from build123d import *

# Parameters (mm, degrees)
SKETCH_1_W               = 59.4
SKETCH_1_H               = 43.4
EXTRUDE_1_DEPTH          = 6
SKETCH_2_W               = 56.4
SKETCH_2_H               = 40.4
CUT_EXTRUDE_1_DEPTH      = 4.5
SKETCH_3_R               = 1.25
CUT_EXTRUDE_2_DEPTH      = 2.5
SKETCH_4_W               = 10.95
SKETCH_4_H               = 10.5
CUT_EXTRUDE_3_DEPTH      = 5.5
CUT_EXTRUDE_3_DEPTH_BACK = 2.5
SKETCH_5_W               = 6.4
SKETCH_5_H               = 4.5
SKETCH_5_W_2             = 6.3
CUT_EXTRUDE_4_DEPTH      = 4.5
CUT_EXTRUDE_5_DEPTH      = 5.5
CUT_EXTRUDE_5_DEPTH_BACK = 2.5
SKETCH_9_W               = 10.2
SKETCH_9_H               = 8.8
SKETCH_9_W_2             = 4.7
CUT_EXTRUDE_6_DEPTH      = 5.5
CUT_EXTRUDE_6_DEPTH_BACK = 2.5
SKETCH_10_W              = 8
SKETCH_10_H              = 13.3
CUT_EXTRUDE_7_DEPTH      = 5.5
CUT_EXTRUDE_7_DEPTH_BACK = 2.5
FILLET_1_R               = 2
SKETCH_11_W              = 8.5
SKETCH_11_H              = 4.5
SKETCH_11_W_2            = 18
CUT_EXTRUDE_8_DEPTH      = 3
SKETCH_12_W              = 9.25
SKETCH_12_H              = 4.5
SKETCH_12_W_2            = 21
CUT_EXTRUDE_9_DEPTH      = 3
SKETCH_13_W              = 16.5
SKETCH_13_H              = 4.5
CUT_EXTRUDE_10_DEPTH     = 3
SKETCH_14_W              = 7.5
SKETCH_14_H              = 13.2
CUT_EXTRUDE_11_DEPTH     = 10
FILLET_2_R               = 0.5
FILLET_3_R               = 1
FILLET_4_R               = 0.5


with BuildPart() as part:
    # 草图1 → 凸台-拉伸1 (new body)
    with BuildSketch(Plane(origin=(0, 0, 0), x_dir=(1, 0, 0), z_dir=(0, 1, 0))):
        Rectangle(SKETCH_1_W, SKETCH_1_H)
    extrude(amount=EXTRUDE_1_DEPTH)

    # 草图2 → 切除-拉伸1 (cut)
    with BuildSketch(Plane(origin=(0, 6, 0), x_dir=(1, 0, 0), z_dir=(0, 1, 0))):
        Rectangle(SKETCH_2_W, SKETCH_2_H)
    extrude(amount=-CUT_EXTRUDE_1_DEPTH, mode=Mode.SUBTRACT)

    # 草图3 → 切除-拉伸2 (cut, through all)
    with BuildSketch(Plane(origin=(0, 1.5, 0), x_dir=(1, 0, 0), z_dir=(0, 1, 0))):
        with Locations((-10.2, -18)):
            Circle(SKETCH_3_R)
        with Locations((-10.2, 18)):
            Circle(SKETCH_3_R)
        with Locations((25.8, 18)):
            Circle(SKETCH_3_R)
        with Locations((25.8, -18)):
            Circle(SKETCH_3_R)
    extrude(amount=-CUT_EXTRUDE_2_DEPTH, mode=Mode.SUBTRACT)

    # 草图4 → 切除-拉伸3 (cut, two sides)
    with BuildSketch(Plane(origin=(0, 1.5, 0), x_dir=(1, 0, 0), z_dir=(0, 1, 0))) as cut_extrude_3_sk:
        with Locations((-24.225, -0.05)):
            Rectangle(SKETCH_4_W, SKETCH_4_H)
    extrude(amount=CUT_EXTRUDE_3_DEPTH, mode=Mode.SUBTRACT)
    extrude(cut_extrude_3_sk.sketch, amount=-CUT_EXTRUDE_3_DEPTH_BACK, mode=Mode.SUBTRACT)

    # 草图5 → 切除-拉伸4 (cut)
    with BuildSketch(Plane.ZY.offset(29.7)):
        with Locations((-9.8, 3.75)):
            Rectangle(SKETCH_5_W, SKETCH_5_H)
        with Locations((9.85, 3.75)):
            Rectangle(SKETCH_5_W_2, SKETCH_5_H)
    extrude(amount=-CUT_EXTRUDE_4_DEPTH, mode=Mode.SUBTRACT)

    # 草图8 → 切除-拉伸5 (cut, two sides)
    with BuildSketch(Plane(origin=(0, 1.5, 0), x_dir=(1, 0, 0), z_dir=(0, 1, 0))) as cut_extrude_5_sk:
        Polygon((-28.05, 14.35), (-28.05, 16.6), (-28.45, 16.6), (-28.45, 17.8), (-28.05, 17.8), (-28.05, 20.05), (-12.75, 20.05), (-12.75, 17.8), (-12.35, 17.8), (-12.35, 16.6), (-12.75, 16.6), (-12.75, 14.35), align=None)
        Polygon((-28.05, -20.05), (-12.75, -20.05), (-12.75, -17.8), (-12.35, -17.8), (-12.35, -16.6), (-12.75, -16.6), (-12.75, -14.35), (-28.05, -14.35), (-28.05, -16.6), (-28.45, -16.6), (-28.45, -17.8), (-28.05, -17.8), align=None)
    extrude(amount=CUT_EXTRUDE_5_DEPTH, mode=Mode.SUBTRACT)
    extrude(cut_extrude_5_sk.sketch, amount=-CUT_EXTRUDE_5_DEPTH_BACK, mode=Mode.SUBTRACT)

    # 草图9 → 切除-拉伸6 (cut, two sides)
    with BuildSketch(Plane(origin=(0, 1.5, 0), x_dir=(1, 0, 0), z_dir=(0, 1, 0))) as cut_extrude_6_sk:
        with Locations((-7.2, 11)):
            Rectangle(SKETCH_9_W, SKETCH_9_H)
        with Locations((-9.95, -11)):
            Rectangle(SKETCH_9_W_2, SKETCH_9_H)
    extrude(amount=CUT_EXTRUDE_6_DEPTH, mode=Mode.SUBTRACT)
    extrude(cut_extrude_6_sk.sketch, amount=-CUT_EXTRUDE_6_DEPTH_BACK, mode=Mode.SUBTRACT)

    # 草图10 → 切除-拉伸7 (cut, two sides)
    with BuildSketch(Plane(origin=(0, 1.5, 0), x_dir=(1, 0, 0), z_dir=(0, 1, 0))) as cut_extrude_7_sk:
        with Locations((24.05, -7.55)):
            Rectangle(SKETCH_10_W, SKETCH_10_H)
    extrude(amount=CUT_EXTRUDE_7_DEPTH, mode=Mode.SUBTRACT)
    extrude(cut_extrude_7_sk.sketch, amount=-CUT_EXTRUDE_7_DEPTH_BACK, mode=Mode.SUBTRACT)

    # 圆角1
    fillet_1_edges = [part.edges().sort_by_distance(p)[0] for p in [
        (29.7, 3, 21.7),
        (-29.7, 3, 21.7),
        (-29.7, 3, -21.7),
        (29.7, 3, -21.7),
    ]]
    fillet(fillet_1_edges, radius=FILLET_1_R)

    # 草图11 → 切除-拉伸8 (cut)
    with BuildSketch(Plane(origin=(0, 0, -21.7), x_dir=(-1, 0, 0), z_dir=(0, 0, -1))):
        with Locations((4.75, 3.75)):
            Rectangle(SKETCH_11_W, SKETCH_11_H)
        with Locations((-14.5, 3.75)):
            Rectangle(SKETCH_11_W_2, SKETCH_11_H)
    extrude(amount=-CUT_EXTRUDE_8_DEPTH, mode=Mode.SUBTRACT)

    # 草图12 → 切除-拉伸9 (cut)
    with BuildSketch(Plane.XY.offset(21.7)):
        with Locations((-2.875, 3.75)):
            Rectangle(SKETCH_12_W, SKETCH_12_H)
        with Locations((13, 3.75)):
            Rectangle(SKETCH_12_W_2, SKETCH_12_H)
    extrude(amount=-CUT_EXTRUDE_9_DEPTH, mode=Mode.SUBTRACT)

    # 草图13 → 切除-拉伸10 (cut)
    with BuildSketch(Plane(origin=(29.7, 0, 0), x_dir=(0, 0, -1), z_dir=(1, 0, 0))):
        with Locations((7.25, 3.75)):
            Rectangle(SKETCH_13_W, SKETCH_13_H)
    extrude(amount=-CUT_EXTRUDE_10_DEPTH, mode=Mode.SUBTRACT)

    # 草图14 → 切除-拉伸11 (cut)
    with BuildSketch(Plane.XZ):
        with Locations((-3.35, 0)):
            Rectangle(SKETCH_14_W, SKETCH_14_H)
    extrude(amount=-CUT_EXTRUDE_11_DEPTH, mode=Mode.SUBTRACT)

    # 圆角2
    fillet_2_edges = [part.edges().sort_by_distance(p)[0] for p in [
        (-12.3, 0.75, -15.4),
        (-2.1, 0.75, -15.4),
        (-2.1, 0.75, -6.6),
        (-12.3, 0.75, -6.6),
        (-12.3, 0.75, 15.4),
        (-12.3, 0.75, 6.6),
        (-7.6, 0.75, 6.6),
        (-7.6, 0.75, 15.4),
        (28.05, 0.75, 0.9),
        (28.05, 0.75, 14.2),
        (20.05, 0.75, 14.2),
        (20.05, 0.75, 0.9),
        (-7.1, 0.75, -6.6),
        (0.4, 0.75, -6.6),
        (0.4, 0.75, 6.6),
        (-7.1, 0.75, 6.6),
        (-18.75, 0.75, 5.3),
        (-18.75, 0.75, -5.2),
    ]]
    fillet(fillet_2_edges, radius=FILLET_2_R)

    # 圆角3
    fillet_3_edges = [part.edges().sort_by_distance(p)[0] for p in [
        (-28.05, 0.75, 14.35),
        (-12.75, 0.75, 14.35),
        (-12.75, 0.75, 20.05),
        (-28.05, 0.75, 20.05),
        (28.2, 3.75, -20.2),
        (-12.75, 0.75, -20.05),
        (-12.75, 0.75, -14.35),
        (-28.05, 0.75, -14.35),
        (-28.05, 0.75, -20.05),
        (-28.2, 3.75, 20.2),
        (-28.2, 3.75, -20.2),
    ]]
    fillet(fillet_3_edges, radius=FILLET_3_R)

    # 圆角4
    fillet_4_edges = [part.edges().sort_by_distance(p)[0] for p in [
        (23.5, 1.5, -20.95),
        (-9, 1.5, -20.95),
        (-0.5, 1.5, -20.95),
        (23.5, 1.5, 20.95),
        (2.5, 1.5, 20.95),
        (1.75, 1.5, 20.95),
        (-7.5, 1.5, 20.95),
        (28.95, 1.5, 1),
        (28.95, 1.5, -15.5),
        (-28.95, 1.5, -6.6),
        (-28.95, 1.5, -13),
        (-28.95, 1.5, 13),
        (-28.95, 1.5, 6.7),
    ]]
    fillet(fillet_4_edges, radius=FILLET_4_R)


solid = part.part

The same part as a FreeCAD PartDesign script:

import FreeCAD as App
import Part
import Sketcher

V = App.Vector


def edges_at(feature, points):
    """Names of the edges that pass closest to the given points."""
    edges = feature.Shape.Edges
    near = lambda p: min(range(len(edges)), key=lambda i: edges[i].distToShape(Part.Vertex(*p))[0])
    return sorted({f"Edge{near(p) + 1}" for p in points})

doc = App.newDocument("Part")
body = doc.addObject("PartDesign::Body", "Body")

# Sketch on XZ plane
sketch1 = doc.addObject("Sketcher::SketchObject", "Sketch")
body.addObject(sketch1)
sketch1.AttachmentSupport = (doc.XZ_Plane, [""])
sketch1.MapMode = "FlatFace"
sketch1.addGeometry([
    Part.LineSegment(V(-30, -22, 0), V(-30, 22, 0)),
    Part.LineSegment(V(-30, 22, 0), V(30, 22, 0)),
    Part.LineSegment(V(30, 22, 0), V(30, -22, 0)),
    Part.LineSegment(V(30, -22, 0), V(-30, -22, 0)),
], False)
sketch1.addConstraint([
    Sketcher.Constraint("Coincident", 0, 2, 1, 1),
    Sketcher.Constraint("Coincident", 1, 2, 2, 1),
    Sketcher.Constraint("Coincident", 2, 2, 3, 1),
    Sketcher.Constraint("Coincident", 3, 2, 0, 1),
    Sketcher.Constraint("Vertical", 0),
    Sketcher.Constraint("Horizontal", 1),
    Sketcher.Constraint("Vertical", 2),
    Sketcher.Constraint("Horizontal", 3),
    Sketcher.Constraint("Symmetric", 0, 2, 2, 2, -1, 1),
    Sketcher.Constraint("DistanceX", 1, 1, 1, 2, 59.4),
    Sketcher.Constraint("DistanceY", 0, 1, 0, 2, 43.4),
])
pad1 = doc.addObject("PartDesign::Pad", "Pad")
body.addObject(pad1)
pad1.Profile = sketch1
pad1.Length = 6
pad1.Reversed = True

# Sketch on XZ plane
sketch2 = doc.addObject("Sketcher::SketchObject", "Sketch001")
body.addObject(sketch2)
sketch2.AttachmentSupport = (doc.XZ_Plane, [""])
sketch2.MapMode = "FlatFace"
sketch2.AttachmentOffset = App.Placement(V(0, 0, -6), App.Rotation())
sketch2.addGeometry([
    Part.LineSegment(V(-28, -20, 0), V(-28, 20, 0)),
    Part.LineSegment(V(-28, 20, 0), V(28, 20, 0)),
    Part.LineSegment(V(28, 20, 0), V(28, -20, 0)),
    Part.LineSegment(V(28, -20, 0), V(-28, -20, 0)),
], False)
sketch2.addConstraint([
    Sketcher.Constraint("Coincident", 0, 2, 1, 1),
    Sketcher.Constraint("Coincident", 1, 2, 2, 1),
    Sketcher.Constraint("Coincident", 2, 2, 3, 1),
    Sketcher.Constraint("Coincident", 3, 2, 0, 1),
    Sketcher.Constraint("Vertical", 0),
    Sketcher.Constraint("Horizontal", 1),
    Sketcher.Constraint("Vertical", 2),
    Sketcher.Constraint("Horizontal", 3),
    Sketcher.Constraint("Symmetric", 0, 2, 2, 2, -1, 1),
    Sketcher.Constraint("DistanceX", 1, 1, 1, 2, 56.4),
    Sketcher.Constraint("DistanceY", 0, 1, 0, 2, 40.4),
])
pocket1 = doc.addObject("PartDesign::Pocket", "Pocket")
body.addObject(pocket1)
pocket1.Profile = sketch2
pocket1.Length = 4.5
pocket1.Reversed = True

# Sketch on XZ plane
sketch3 = doc.addObject("Sketcher::SketchObject", "Sketch002")
body.addObject(sketch3)
sketch3.AttachmentSupport = (doc.XZ_Plane, [""])
sketch3.MapMode = "FlatFace"
sketch3.AttachmentOffset = App.Placement(V(0, 0, -1.5), App.Rotation())
sketch3.addGeometry([
    Part.Circle(V(-10.2, 18, 0), V(0, 0, 1), 1.2),
    Part.Circle(V(-10.2, -18, 0), V(0, 0, 1), 1.2),
    Part.Circle(V(25.8, -18, 0), V(0, 0, 1), 1.2),
    Part.Circle(V(25.8, 18, 0), V(0, 0, 1), 1.2),
], False)
sketch3.addConstraint([
    Sketcher.Constraint("Equal", 0, 1),
    Sketcher.Constraint("Equal", 1, 2),
    Sketcher.Constraint("Equal", 2, 3),
    Sketcher.Constraint("Symmetric", 0, 3, 1, 3, -1),
    Sketcher.Constraint("Symmetric", 2, 3, 3, 3, -1),
    Sketcher.Constraint("Horizontal", 1, 3, 2, 3),
    Sketcher.Constraint("Diameter", 0, 2.5),
    Sketcher.Constraint("DistanceY", -1, 1, 0, 3, 18.0),
    Sketcher.Constraint("DistanceX", 1, 3, 2, 3, 36.0),
    Sketcher.Constraint("DistanceX", 0, 3, -1, 1, 10.2),
])
pocket2 = doc.addObject("PartDesign::Pocket", "Pocket001")
body.addObject(pocket2)
pocket2.Profile = sketch3
pocket2.Type = "ThroughAll"
pocket2.Reversed = True

# Sketch on XZ plane
sketch4 = doc.addObject("Sketcher::SketchObject", "Sketch003")
body.addObject(sketch4)
sketch4.AttachmentSupport = (doc.XZ_Plane, [""])
sketch4.MapMode = "FlatFace"
sketch4.AttachmentOffset = App.Placement(V(0, 0, -1.5), App.Rotation())
sketch4.addGeometry([
    Part.LineSegment(V(-30, -5, 0), V(-30, 5, 0)),
    Part.LineSegment(V(-30, 5, 0), V(-19, 5, 0)),
    Part.LineSegment(V(-19, 5, 0), V(-19, -5, 0)),
    Part.LineSegment(V(-19, -5, 0), V(-30, -5, 0)),
], False)
sketch4.addConstraint([
    Sketcher.Constraint("Coincident", 0, 2, 1, 1),
    Sketcher.Constraint("Coincident", 1, 2, 2, 1),
    Sketcher.Constraint("Coincident", 2, 2, 3, 1),
    Sketcher.Constraint("Coincident", 3, 2, 0, 1),
    Sketcher.Constraint("Vertical", 0),
    Sketcher.Constraint("Horizontal", 1),
    Sketcher.Constraint("Vertical", 2),
    Sketcher.Constraint("Horizontal", 3),
    Sketcher.Constraint("DistanceY", 0, 1, 0, 2, 10.5),
    Sketcher.Constraint("DistanceX", 1, 1, 1, 2, 10.95),
    Sketcher.Constraint("DistanceX", 0, 2, -1, 1, 29.7),
    Sketcher.Constraint("DistanceY", -1, 1, 0, 2, 5.3),
])
pocket3 = doc.addObject("PartDesign::Pocket", "Pocket002")
body.addObject(pocket3)
pocket3.Profile = sketch4
pocket3.Type = "ThroughAll"
pocket3.Midplane = True

# Sketch on YZ plane
sketch5 = doc.addObject("Sketcher::SketchObject", "Sketch004")
body.addObject(sketch5)
sketch5.AttachmentSupport = (doc.YZ_Plane, [""])
sketch5.MapMode = "FlatFace"
sketch5.AttachmentOffset = App.Placement(V(0, 0, -29.7), App.Rotation())
sketch5.addGeometry([
    Part.LineSegment(V(6, -13, 0), V(1.5, -13, 0)),  # 0
    Part.LineSegment(V(1.5, -13, 0), V(1.5, -6.6, 0)),  # 1
    Part.LineSegment(V(1.5, -6.6, 0), V(6, -6.6, 0)),  # 2
    Part.LineSegment(V(6, -6.6, 0), V(6, -13, 0)),  # 3
    Part.LineSegment(V(6, 6.7, 0), V(1.5, 6.7, 0)),  # 4
    Part.LineSegment(V(1.5, 6.7, 0), V(1.5, 13, 0)),  # 5
    Part.LineSegment(V(1.5, 13, 0), V(6, 13, 0)),  # 6
    Part.LineSegment(V(6, 13, 0), V(6, 6.7, 0)),  # 7
], False)
sketch5.addConstraint([
    Sketcher.Constraint("Coincident", 0, 2, 1, 1),
    Sketcher.Constraint("Coincident", 1, 2, 2, 1),
    Sketcher.Constraint("Coincident", 2, 2, 3, 1),
    Sketcher.Constraint("Coincident", 3, 2, 0, 1),
    Sketcher.Constraint("Coincident", 4, 2, 5, 1),
    Sketcher.Constraint("Coincident", 5, 2, 6, 1),
    Sketcher.Constraint("Coincident", 6, 2, 7, 1),
    Sketcher.Constraint("Coincident", 7, 2, 4, 1),
    Sketcher.Constraint("Horizontal", 0),
    Sketcher.Constraint("Vertical", 1),
    Sketcher.Constraint("Horizontal", 2),
    Sketcher.Constraint("Vertical", 3),
    Sketcher.Constraint("Horizontal", 4),
    Sketcher.Constraint("Vertical", 5),
    Sketcher.Constraint("Horizontal", 6),
    Sketcher.Constraint("Vertical", 7),
    Sketcher.Constraint("Symmetric", 0, 2, 5, 2, -1),
    Sketcher.Constraint("Vertical", 3, 2, 6, 2),
    Sketcher.Constraint("DistanceX", 0, 2, 0, 1, 4.5),
    Sketcher.Constraint("DistanceY", 1, 1, 1, 2, 6.4),
    Sketcher.Constraint("DistanceY", 5, 1, 5, 2, 6.3),
    Sketcher.Constraint("DistanceY", 0, 2, -1, 1, 13.0),
    Sketcher.Constraint("DistanceX", -1, 1, 2, 2, 6.0),
])
pocket4 = doc.addObject("PartDesign::Pocket", "Pocket003")
body.addObject(pocket4)
pocket4.Profile = sketch5
pocket4.Length = 4.5
pocket4.Reversed = True

# Sketch on XZ plane
sketch6 = doc.addObject("Sketcher::SketchObject", "Sketch005")
body.addObject(sketch6)
sketch6.AttachmentSupport = (doc.XZ_Plane, [""])
sketch6.MapMode = "FlatFace"
sketch6.AttachmentOffset = App.Placement(V(0, 0, -1.5), App.Rotation())
sketch6.addGeometry([
    Part.LineSegment(V(-28.05, -16.6, 0), V(-28.05, -14.35, 0)),  # 0
    Part.LineSegment(V(-28.05, -14.35, 0), V(-12.75, -14.35, 0)),  # 1
    Part.LineSegment(V(-12.75, -14.35, 0), V(-12.75, -16.6, 0)),  # 2
    Part.LineSegment(V(-12.75, -16.6, 0), V(-12.35, -16.6, 0)),  # 3
    Part.LineSegment(V(-12.35, -16.6, 0), V(-12.35, -17.8, 0)),  # 4
    Part.LineSegment(V(-12.35, -17.8, 0), V(-12.75, -17.8, 0)),  # 5
    Part.LineSegment(V(-12.75, -17.8, 0), V(-12.75, -20.05, 0)),  # 6
    Part.LineSegment(V(-12.75, -20.05, 0), V(-28.05, -20.05, 0)),  # 7
    Part.LineSegment(V(-28.05, -20.05, 0), V(-28.05, -17.8, 0)),  # 8
    Part.LineSegment(V(-28.05, -17.8, 0), V(-28.45, -17.8, 0)),  # 9
    Part.LineSegment(V(-28.45, -17.8, 0), V(-28.45, -16.6, 0)),  # 10
    Part.LineSegment(V(-28.45, -16.6, 0), V(-28.05, -16.6, 0)),  # 11
    Part.LineSegment(V(-28.05, 20.05, 0), V(-12.75, 20.05, 0)),  # 12
    Part.LineSegment(V(-12.75, 20.05, 0), V(-12.75, 17.8, 0)),  # 13
    Part.LineSegment(V(-12.75, 17.8, 0), V(-12.35, 17.8, 0)),  # 14
    Part.LineSegment(V(-12.35, 17.8, 0), V(-12.35, 16.6, 0)),  # 15
    Part.LineSegment(V(-12.35, 16.6, 0), V(-12.75, 16.6, 0)),  # 16
    Part.LineSegment(V(-12.75, 16.6, 0), V(-12.75, 14.35, 0)),  # 17
    Part.LineSegment(V(-12.75, 14.35, 0), V(-28.05, 14.35, 0)),  # 18
    Part.LineSegment(V(-28.05, 14.35, 0), V(-28.05, 16.6, 0)),  # 19
    Part.LineSegment(V(-28.05, 16.6, 0), V(-28.45, 16.6, 0)),  # 20
    Part.LineSegment(V(-28.45, 16.6, 0), V(-28.45, 17.8, 0)),  # 21
    Part.LineSegment(V(-28.45, 17.8, 0), V(-28.05, 17.8, 0)),  # 22
    Part.LineSegment(V(-28.05, 17.8, 0), V(-28.05, 20.05, 0)),  # 23
], False)
sketch6.addConstraint([
    Sketcher.Constraint("Coincident", 0, 2, 1, 1),
    Sketcher.Constraint("Coincident", 1, 2, 2, 1),
    Sketcher.Constraint("Coincident", 2, 2, 3, 1),
    Sketcher.Constraint("Coincident", 3, 2, 4, 1),
    Sketcher.Constraint("Coincident", 4, 2, 5, 1),
    Sketcher.Constraint("Coincident", 5, 2, 6, 1),
    Sketcher.Constraint("Coincident", 6, 2, 7, 1),
    Sketcher.Constraint("Coincident", 7, 2, 8, 1),
    Sketcher.Constraint("Coincident", 8, 2, 9, 1),
    Sketcher.Constraint("Coincident", 9, 2, 10, 1),
    Sketcher.Constraint("Coincident", 10, 2, 11, 1),
    Sketcher.Constraint("Coincident", 11, 2, 0, 1),
    Sketcher.Constraint("Coincident", 12, 2, 13, 1),
    Sketcher.Constraint("Coincident", 13, 2, 14, 1),
    Sketcher.Constraint("Coincident", 14, 2, 15, 1),
    Sketcher.Constraint("Coincident", 15, 2, 16, 1),
    Sketcher.Constraint("Coincident", 16, 2, 17, 1),
    Sketcher.Constraint("Coincident", 17, 2, 18, 1),
    Sketcher.Constraint("Coincident", 18, 2, 19, 1),
    Sketcher.Constraint("Coincident", 19, 2, 20, 1),
    Sketcher.Constraint("Coincident", 20, 2, 21, 1),
    Sketcher.Constraint("Coincident", 21, 2, 22, 1),
    Sketcher.Constraint("Coincident", 22, 2, 23, 1),
    Sketcher.Constraint("Coincident", 23, 2, 12, 1),
    Sketcher.Constraint("Vertical", 0),
    Sketcher.Constraint("Horizontal", 1),
    Sketcher.Constraint("Vertical", 2),
    Sketcher.Constraint("Horizontal", 3),
    Sketcher.Constraint("Vertical", 4),
    Sketcher.Constraint("Horizontal", 5),
    Sketcher.Constraint("Vertical", 6),
    Sketcher.Constraint("Horizontal", 7),
    Sketcher.Constraint("Vertical", 8),
    Sketcher.Constraint("Horizontal", 9),
    Sketcher.Constraint("Vertical", 10),
    Sketcher.Constraint("Horizontal", 11),
    Sketcher.Constraint("Horizontal", 12),
    Sketcher.Constraint("Vertical", 13),
    Sketcher.Constraint("Horizontal", 14),
    Sketcher.Constraint("Vertical", 15),
    Sketcher.Constraint("Horizontal", 16),
    Sketcher.Constraint("Vertical", 17),
    Sketcher.Constraint("Horizontal", 18),
    Sketcher.Constraint("Vertical", 19),
    Sketcher.Constraint("Horizontal", 20),
    Sketcher.Constraint("Vertical", 21),
    Sketcher.Constraint("Horizontal", 22),
    Sketcher.Constraint("Vertical", 23),
    Sketcher.Constraint("Symmetric", 6, 2, 12, 2, -1),
    Sketcher.Constraint("Symmetric", 4, 2, 14, 2, -1),
    Sketcher.Constraint("Symmetric", 2, 2, 16, 2, -1),
    Sketcher.Constraint("Symmetric", 0, 2, 18, 2, -1),
    Sketcher.Constraint("Symmetric", 10, 2, 20, 2, -1),
    Sketcher.Constraint("Symmetric", 8, 2, 22, 2, -1),
    Sketcher.Constraint("Horizontal", 5, 2, 8, 2),
    Sketcher.Constraint("Horizontal", 3, 2, 10, 2),
    Sketcher.Constraint("Vertical", 2, 2, 5, 2),
    Sketcher.Constraint("Vertical", 0, 2, 7, 2),
    Sketcher.Constraint("Equal", 5, 9),
    Sketcher.Constraint("Equal", 2, 6),
    Sketcher.Constraint("DistanceX", 1, 1, 1, 2, 15.3),
    Sketcher.Constraint("DistanceX", 3, 1, 3, 2, 0.4),
    Sketcher.Constraint("DistanceY", 4, 2, 4, 1, 1.2),
    Sketcher.Constraint("DistanceY", 0, 1, 0, 2, 2.25),
    Sketcher.Constraint("DistanceY", 2, 2, -1, 1, 16.6),
    Sketcher.Constraint("DistanceX", 0, 2, -1, 1, 28.05),
])
pocket5 = doc.addObject("PartDesign::Pocket", "Pocket004")
body.addObject(pocket5)
pocket5.Profile = sketch6
pocket5.Type = "ThroughAll"
pocket5.Midplane = True

# Sketch on XZ plane
sketch7 = doc.addObject("Sketcher::SketchObject", "Sketch006")
body.addObject(sketch7)
sketch7.AttachmentSupport = (doc.XZ_Plane, [""])
sketch7.MapMode = "FlatFace"
sketch7.AttachmentOffset = App.Placement(V(0, 0, -1.5), App.Rotation())
sketch7.addGeometry([
    Part.LineSegment(V(-12.3, -15.4, 0), V(-12.3, -6.6, 0)),  # 0
    Part.LineSegment(V(-12.3, -6.6, 0), V(-2.1, -6.6, 0)),  # 1
    Part.LineSegment(V(-2.1, -6.6, 0), V(-2.1, -15.4, 0)),  # 2
    Part.LineSegment(V(-2.1, -15.4, 0), V(-12.3, -15.4, 0)),  # 3
    Part.LineSegment(V(-12.3, 6.6, 0), V(-12.3, 15.4, 0)),  # 4
    Part.LineSegment(V(-12.3, 15.4, 0), V(-7.6, 15.4, 0)),  # 5
    Part.LineSegment(V(-7.6, 15.4, 0), V(-7.6, 6.6, 0)),  # 6
    Part.LineSegment(V(-7.6, 6.6, 0), V(-12.3, 6.6, 0)),  # 7
], False)
sketch7.addConstraint([
    Sketcher.Constraint("Coincident", 0, 2, 1, 1),
    Sketcher.Constraint("Coincident", 1, 2, 2, 1),
    Sketcher.Constraint("Coincident", 2, 2, 3, 1),
    Sketcher.Constraint("Coincident", 3, 2, 0, 1),
    Sketcher.Constraint("Coincident", 4, 2, 5, 1),
    Sketcher.Constraint("Coincident", 5, 2, 6, 1),
    Sketcher.Constraint("Coincident", 6, 2, 7, 1),
    Sketcher.Constraint("Coincident", 7, 2, 4, 1),
    Sketcher.Constraint("Vertical", 0),
    Sketcher.Constraint("Horizontal", 1),
    Sketcher.Constraint("Vertical", 2),
    Sketcher.Constraint("Horizontal", 3),
    Sketcher.Constraint("Vertical", 4),
    Sketcher.Constraint("Horizontal", 5),
    Sketcher.Constraint("Vertical", 6),
    Sketcher.Constraint("Horizontal", 7),
    Sketcher.Constraint("Symmetric", 3, 2, 4, 2, -1),
    Sketcher.Constraint("Equal", 2, 4),
    Sketcher.Constraint("DistanceX", 1, 1, 1, 2, 10.2),
    Sketcher.Constraint("DistanceX", 5, 1, 5, 2, 4.7),
    Sketcher.Constraint("DistanceY", 0, 1, 0, 2, 8.8),
    Sketcher.Constraint("DistanceY", 0, 2, 4, 2, 22.0),
    Sketcher.Constraint("DistanceX", 0, 2, -1, 1, 12.3),
])
pocket6 = doc.addObject("PartDesign::Pocket", "Pocket005")
body.addObject(pocket6)
pocket6.Profile = sketch7
pocket6.Type = "ThroughAll"
pocket6.Midplane = True

# Sketch on XZ plane
sketch8 = doc.addObject("Sketcher::SketchObject", "Sketch007")
body.addObject(sketch8)
sketch8.AttachmentSupport = (doc.XZ_Plane, [""])
sketch8.MapMode = "FlatFace"
sketch8.AttachmentOffset = App.Placement(V(0, 0, -1.5), App.Rotation())
sketch8.addGeometry([
    Part.LineSegment(V(20, 1, 0), V(20, 14, 0)),
    Part.LineSegment(V(20, 14, 0), V(28, 14, 0)),
    Part.LineSegment(V(28, 14, 0), V(28, 1, 0)),
    Part.LineSegment(V(28, 1, 0), V(20, 1, 0)),
], False)
sketch8.addConstraint([
    Sketcher.Constraint("Coincident", 0, 2, 1, 1),
    Sketcher.Constraint("Coincident", 1, 2, 2, 1),
    Sketcher.Constraint("Coincident", 2, 2, 3, 1),
    Sketcher.Constraint("Coincident", 3, 2, 0, 1),
    Sketcher.Constraint("Vertical", 0),
    Sketcher.Constraint("Horizontal", 1),
    Sketcher.Constraint("Vertical", 2),
    Sketcher.Constraint("Horizontal", 3),
    Sketcher.Constraint("DistanceX", 1, 1, 1, 2, 8.0),
    Sketcher.Constraint("DistanceY", 0, 1, 0, 2, 13.3),
    Sketcher.Constraint("DistanceY", -1, 1, 0, 2, 14.2),
    Sketcher.Constraint("DistanceX", -1, 1, 0, 2, 20.05),
])
pocket7 = doc.addObject("PartDesign::Pocket", "Pocket006")
body.addObject(pocket7)
pocket7.Profile = sketch8
pocket7.Type = "ThroughAll"
pocket7.Midplane = True
doc.recompute()

fillet = doc.addObject("PartDesign::Fillet", "Fillet")
body.addObject(fillet)
fillet.Base = (pocket7, edges_at(pocket7, [
    (29.7, 3, 21.7),
    (-29.7, 3, 21.7),
    (-29.7, 3, -21.7),
    (29.7, 3, -21.7),
]))
fillet.Radius = 2

# Sketch on XY plane
sketch9 = doc.addObject("Sketcher::SketchObject", "Sketch008")
body.addObject(sketch9)
sketch9.AttachmentSupport = (doc.XY_Plane, [""])
sketch9.MapMode = "FlatFace"
sketch9.AttachmentOffset = App.Placement(V(0, 0, -21.7), App.Rotation())
sketch9.addGeometry([
    Part.LineSegment(V(-0.5, 6, 0), V(-0.5, 1.5, 0)),  # 0
    Part.LineSegment(V(-0.5, 1.5, 0), V(-9, 1.5, 0)),  # 1
    Part.LineSegment(V(-9, 1.5, 0), V(-9, 6, 0)),  # 2
    Part.LineSegment(V(-9, 6, 0), V(-0.5, 6, 0)),  # 3
    Part.LineSegment(V(23.5, 6, 0), V(23.5, 1.5, 0)),  # 4
    Part.LineSegment(V(23.5, 1.5, 0), V(5.5, 1.5, 0)),  # 5
    Part.LineSegment(V(5.5, 1.5, 0), V(5.5, 6, 0)),  # 6
    Part.LineSegment(V(5.5, 6, 0), V(23.5, 6, 0)),  # 7
], False)
sketch9.addConstraint([
    Sketcher.Constraint("Coincident", 0, 2, 1, 1),
    Sketcher.Constraint("Coincident", 1, 2, 2, 1),
    Sketcher.Constraint("Coincident", 2, 2, 3, 1),
    Sketcher.Constraint("Coincident", 3, 2, 0, 1),
    Sketcher.Constraint("Coincident", 4, 2, 5, 1),
    Sketcher.Constraint("Coincident", 5, 2, 6, 1),
    Sketcher.Constraint("Coincident", 6, 2, 7, 1),
    Sketcher.Constraint("Coincident", 7, 2, 4, 1),
    Sketcher.Constraint("Vertical", 0),
    Sketcher.Constraint("Horizontal", 1),
    Sketcher.Constraint("Vertical", 2),
    Sketcher.Constraint("Horizontal", 3),
    Sketcher.Constraint("Vertical", 4),
    Sketcher.Constraint("Horizontal", 5),
    Sketcher.Constraint("Vertical", 6),
    Sketcher.Constraint("Horizontal", 7),
    Sketcher.Constraint("Horizontal", 1, 2, 4, 2),
    Sketcher.Constraint("Horizontal", 3, 2, 6, 2),
    Sketcher.Constraint("DistanceX", 5, 2, 5, 1, 18.0),
    Sketcher.Constraint("DistanceX", 1, 2, 1, 1, 8.5),
    Sketcher.Constraint("DistanceY", 0, 2, 0, 1, 4.5),
    Sketcher.Constraint("DistanceX", 1, 2, -1, 1, 9.0),
    Sketcher.Constraint("DistanceY", -1, 1, 2, 2, 6.0),
    Sketcher.Constraint("DistanceX", 0, 2, 4, 2, 24.0),
])
pocket8 = doc.addObject("PartDesign::Pocket", "Pocket007")
body.addObject(pocket8)
pocket8.Profile = sketch9
pocket8.Length = 3
pocket8.Reversed = True

# Sketch on XY plane
sketch10 = doc.addObject("Sketcher::SketchObject", "Sketch009")
body.addObject(sketch10)
sketch10.AttachmentSupport = (doc.XY_Plane, [""])
sketch10.MapMode = "FlatFace"
sketch10.AttachmentOffset = App.Placement(V(0, 0, 21.7), App.Rotation())
sketch10.addGeometry([
    Part.LineSegment(V(-7.5, 6, 0), V(-7.5, 1.5, 0)),  # 0
    Part.LineSegment(V(-7.5, 1.5, 0), V(1.8, 1.5, 0)),  # 1
    Part.LineSegment(V(1.8, 1.5, 0), V(1.8, 6, 0)),  # 2
    Part.LineSegment(V(1.8, 6, 0), V(-7.5, 6, 0)),  # 3
    Part.LineSegment(V(2.5, 6, 0), V(2.5, 1.5, 0)),  # 4
    Part.LineSegment(V(2.5, 1.5, 0), V(23.5, 1.5, 0)),  # 5
    Part.LineSegment(V(23.5, 1.5, 0), V(23.5, 6, 0)),  # 6
    Part.LineSegment(V(23.5, 6, 0), V(2.5, 6, 0)),  # 7
], False)
sketch10.addConstraint([
    Sketcher.Constraint("Coincident", 0, 2, 1, 1),
    Sketcher.Constraint("Coincident", 1, 2, 2, 1),
    Sketcher.Constraint("Coincident", 2, 2, 3, 1),
    Sketcher.Constraint("Coincident", 3, 2, 0, 1),
    Sketcher.Constraint("Coincident", 4, 2, 5, 1),
    Sketcher.Constraint("Coincident", 5, 2, 6, 1),
    Sketcher.Constraint("Coincident", 6, 2, 7, 1),
    Sketcher.Constraint("Coincident", 7, 2, 4, 1),
    Sketcher.Constraint("Vertical", 0),
    Sketcher.Constraint("Horizontal", 1),
    Sketcher.Constraint("Vertical", 2),
    Sketcher.Constraint("Horizontal", 3),
    Sketcher.Constraint("Vertical", 4),
    Sketcher.Constraint("Horizontal", 5),
    Sketcher.Constraint("Vertical", 6),
    Sketcher.Constraint("Horizontal", 7),
    Sketcher.Constraint("Horizontal", 1, 2, 4, 2),
    Sketcher.Constraint("Horizontal", 3, 2, 6, 2),
    Sketcher.Constraint("DistanceX", 5, 1, 5, 2, 21.0),
    Sketcher.Constraint("DistanceY", 0, 2, 0, 1, 4.5),
    Sketcher.Constraint("DistanceY", -1, 1, 2, 2, 6.0),
    Sketcher.Constraint("DistanceX", 0, 2, 4, 2, 10.0),
    Sketcher.Constraint("DistanceX", 1, 1, 1, 2, 9.25),
    Sketcher.Constraint("DistanceX", 0, 2, -1, 1, 7.5),
])
pocket9 = doc.addObject("PartDesign::Pocket", "Pocket008")
body.addObject(pocket9)
pocket9.Profile = sketch10
pocket9.Length = 3

# Sketch on YZ plane
sketch11 = doc.addObject("Sketcher::SketchObject", "Sketch010")
body.addObject(sketch11)
sketch11.AttachmentSupport = (doc.YZ_Plane, [""])
sketch11.MapMode = "FlatFace"
sketch11.AttachmentOffset = App.Placement(V(0, 0, 29.7), App.Rotation())
sketch11.addGeometry([
    Part.LineSegment(V(6, 1, 0), V(1.5, 1, 0)),
    Part.LineSegment(V(1.5, 1, 0), V(1.5, -15.5, 0)),
    Part.LineSegment(V(1.5, -15.5, 0), V(6, -15.5, 0)),
    Part.LineSegment(V(6, -15.5, 0), V(6, 1, 0)),
], False)
sketch11.addConstraint([
    Sketcher.Constraint("Coincident", 0, 2, 1, 1),
    Sketcher.Constraint("Coincident", 1, 2, 2, 1),
    Sketcher.Constraint("Coincident", 2, 2, 3, 1),
    Sketcher.Constraint("Coincident", 3, 2, 0, 1),
    Sketcher.Constraint("Horizontal", 0),
    Sketcher.Constraint("Vertical", 1),
    Sketcher.Constraint("Horizontal", 2),
    Sketcher.Constraint("Vertical", 3),
    Sketcher.Constraint("DistanceX", 0, 2, 0, 1, 4.5),
    Sketcher.Constraint("DistanceY", 1, 2, 1, 1, 16.5),
    Sketcher.Constraint("DistanceY", -1, 1, 0, 2, 1.0),
    Sketcher.Constraint("DistanceX", -1, 1, 2, 2, 6.0),
])
pocket10 = doc.addObject("PartDesign::Pocket", "Pocket009")
body.addObject(pocket10)
pocket10.Profile = sketch11
pocket10.Length = 3

# Sketch on XZ plane
sketch12 = doc.addObject("Sketcher::SketchObject", "Sketch011")
body.addObject(sketch12)
sketch12.AttachmentSupport = (doc.XZ_Plane, [""])
sketch12.MapMode = "FlatFace"
sketch12.addGeometry([
    Part.LineSegment(V(-7, 7, 0), V(-7, -7, 0)),
    Part.LineSegment(V(-7, -7, 0), V(0, -7, 0)),
    Part.LineSegment(V(0, -7, 0), V(0, 7, 0)),
    Part.LineSegment(V(0, 7, 0), V(-7, 7, 0)),
], False)
sketch12.addConstraint([
    Sketcher.Constraint("Coincident", 0, 2, 1, 1),
    Sketcher.Constraint("Coincident", 1, 2, 2, 1),
    Sketcher.Constraint("Coincident", 2, 2, 3, 1),
    Sketcher.Constraint("Coincident", 3, 2, 0, 1),
    Sketcher.Constraint("Vertical", 0),
    Sketcher.Constraint("Horizontal", 1),
    Sketcher.Constraint("Vertical", 2),
    Sketcher.Constraint("Horizontal", 3),
    Sketcher.Constraint("DistanceX", 1, 1, 1, 2, 7.5),
    Sketcher.Constraint("DistanceY", 0, 2, 0, 1, 13.2),
    Sketcher.Constraint("DistanceX", 0, 2, -1, 1, 7.1),
    Sketcher.Constraint("DistanceY", 0, 2, -1, 1, 6.6),
])
pocket11 = doc.addObject("PartDesign::Pocket", "Pocket010")
body.addObject(pocket11)
pocket11.Profile = sketch12
pocket11.Length = 10
doc.recompute()

fillet2 = doc.addObject("PartDesign::Fillet", "Fillet001")
body.addObject(fillet2)
fillet2.Base = (pocket11, edges_at(pocket11, [
    (-12.3, 0.75, -15.4),
    (-2.1, 0.75, -15.4),
    (-2.1, 0.75, -6.6),
    (-12.3, 0.75, -6.6),
    (-12.3, 0.75, 15.4),
    (-12.3, 0.75, 6.6),
    (-7.6, 0.75, 6.6),
    (-7.6, 0.75, 15.4),
    (28.05, 0.75, 0.9),
    (28.05, 0.75, 14.2),
    (20.05, 0.75, 14.2),
    (20.05, 0.75, 0.9),
    (-7.1, 0.75, -6.6),
    (0.4, 0.75, -6.6),
    (0.4, 0.75, 6.6),
    (-7.1, 0.75, 6.6),
    (-18.75, 0.75, 5.3),
    (-18.75, 0.75, -5.2),
]))
fillet2.Radius = 0.5
doc.recompute()

fillet3 = doc.addObject("PartDesign::Fillet", "Fillet002")
body.addObject(fillet3)
fillet3.Base = (fillet2, edges_at(fillet2, [
    (-28.05, 0.75, 14.35),
    (-12.75, 0.75, 14.35),
    (-12.75, 0.75, 20.05),
    (-28.05, 0.75, 20.05),
    (28.2, 3.75, -20.2),
    (-12.75, 0.75, -20.05),
    (-12.75, 0.75, -14.35),
    (-28.05, 0.75, -14.35),
    (-28.05, 0.75, -20.05),
    (-28.2, 3.75, 20.2),
    (-28.2, 3.75, -20.2),
]))
fillet3.Radius = 1
doc.recompute()

fillet4 = doc.addObject("PartDesign::Fillet", "Fillet003")
body.addObject(fillet4)
fillet4.Base = (fillet3, edges_at(fillet3, [
    (23.5, 1.5, -20.95),
    (-9, 1.5, -20.95),
    (-0.5, 1.5, -20.95),
    (23.5, 1.5, 20.95),
    (2.5, 1.5, 20.95),
    (1.75, 1.5, 20.95),
    (-7.5, 1.5, 20.95),
    (28.95, 1.5, 1),
    (28.95, 1.5, -15.5),
    (-28.95, 1.5, -6.6),
    (-28.95, 1.5, -13),
    (-28.95, 1.5, 13),
    (-28.95, 1.5, 6.7),
]))
fillet4.Radius = 0.5

doc.recompute()
